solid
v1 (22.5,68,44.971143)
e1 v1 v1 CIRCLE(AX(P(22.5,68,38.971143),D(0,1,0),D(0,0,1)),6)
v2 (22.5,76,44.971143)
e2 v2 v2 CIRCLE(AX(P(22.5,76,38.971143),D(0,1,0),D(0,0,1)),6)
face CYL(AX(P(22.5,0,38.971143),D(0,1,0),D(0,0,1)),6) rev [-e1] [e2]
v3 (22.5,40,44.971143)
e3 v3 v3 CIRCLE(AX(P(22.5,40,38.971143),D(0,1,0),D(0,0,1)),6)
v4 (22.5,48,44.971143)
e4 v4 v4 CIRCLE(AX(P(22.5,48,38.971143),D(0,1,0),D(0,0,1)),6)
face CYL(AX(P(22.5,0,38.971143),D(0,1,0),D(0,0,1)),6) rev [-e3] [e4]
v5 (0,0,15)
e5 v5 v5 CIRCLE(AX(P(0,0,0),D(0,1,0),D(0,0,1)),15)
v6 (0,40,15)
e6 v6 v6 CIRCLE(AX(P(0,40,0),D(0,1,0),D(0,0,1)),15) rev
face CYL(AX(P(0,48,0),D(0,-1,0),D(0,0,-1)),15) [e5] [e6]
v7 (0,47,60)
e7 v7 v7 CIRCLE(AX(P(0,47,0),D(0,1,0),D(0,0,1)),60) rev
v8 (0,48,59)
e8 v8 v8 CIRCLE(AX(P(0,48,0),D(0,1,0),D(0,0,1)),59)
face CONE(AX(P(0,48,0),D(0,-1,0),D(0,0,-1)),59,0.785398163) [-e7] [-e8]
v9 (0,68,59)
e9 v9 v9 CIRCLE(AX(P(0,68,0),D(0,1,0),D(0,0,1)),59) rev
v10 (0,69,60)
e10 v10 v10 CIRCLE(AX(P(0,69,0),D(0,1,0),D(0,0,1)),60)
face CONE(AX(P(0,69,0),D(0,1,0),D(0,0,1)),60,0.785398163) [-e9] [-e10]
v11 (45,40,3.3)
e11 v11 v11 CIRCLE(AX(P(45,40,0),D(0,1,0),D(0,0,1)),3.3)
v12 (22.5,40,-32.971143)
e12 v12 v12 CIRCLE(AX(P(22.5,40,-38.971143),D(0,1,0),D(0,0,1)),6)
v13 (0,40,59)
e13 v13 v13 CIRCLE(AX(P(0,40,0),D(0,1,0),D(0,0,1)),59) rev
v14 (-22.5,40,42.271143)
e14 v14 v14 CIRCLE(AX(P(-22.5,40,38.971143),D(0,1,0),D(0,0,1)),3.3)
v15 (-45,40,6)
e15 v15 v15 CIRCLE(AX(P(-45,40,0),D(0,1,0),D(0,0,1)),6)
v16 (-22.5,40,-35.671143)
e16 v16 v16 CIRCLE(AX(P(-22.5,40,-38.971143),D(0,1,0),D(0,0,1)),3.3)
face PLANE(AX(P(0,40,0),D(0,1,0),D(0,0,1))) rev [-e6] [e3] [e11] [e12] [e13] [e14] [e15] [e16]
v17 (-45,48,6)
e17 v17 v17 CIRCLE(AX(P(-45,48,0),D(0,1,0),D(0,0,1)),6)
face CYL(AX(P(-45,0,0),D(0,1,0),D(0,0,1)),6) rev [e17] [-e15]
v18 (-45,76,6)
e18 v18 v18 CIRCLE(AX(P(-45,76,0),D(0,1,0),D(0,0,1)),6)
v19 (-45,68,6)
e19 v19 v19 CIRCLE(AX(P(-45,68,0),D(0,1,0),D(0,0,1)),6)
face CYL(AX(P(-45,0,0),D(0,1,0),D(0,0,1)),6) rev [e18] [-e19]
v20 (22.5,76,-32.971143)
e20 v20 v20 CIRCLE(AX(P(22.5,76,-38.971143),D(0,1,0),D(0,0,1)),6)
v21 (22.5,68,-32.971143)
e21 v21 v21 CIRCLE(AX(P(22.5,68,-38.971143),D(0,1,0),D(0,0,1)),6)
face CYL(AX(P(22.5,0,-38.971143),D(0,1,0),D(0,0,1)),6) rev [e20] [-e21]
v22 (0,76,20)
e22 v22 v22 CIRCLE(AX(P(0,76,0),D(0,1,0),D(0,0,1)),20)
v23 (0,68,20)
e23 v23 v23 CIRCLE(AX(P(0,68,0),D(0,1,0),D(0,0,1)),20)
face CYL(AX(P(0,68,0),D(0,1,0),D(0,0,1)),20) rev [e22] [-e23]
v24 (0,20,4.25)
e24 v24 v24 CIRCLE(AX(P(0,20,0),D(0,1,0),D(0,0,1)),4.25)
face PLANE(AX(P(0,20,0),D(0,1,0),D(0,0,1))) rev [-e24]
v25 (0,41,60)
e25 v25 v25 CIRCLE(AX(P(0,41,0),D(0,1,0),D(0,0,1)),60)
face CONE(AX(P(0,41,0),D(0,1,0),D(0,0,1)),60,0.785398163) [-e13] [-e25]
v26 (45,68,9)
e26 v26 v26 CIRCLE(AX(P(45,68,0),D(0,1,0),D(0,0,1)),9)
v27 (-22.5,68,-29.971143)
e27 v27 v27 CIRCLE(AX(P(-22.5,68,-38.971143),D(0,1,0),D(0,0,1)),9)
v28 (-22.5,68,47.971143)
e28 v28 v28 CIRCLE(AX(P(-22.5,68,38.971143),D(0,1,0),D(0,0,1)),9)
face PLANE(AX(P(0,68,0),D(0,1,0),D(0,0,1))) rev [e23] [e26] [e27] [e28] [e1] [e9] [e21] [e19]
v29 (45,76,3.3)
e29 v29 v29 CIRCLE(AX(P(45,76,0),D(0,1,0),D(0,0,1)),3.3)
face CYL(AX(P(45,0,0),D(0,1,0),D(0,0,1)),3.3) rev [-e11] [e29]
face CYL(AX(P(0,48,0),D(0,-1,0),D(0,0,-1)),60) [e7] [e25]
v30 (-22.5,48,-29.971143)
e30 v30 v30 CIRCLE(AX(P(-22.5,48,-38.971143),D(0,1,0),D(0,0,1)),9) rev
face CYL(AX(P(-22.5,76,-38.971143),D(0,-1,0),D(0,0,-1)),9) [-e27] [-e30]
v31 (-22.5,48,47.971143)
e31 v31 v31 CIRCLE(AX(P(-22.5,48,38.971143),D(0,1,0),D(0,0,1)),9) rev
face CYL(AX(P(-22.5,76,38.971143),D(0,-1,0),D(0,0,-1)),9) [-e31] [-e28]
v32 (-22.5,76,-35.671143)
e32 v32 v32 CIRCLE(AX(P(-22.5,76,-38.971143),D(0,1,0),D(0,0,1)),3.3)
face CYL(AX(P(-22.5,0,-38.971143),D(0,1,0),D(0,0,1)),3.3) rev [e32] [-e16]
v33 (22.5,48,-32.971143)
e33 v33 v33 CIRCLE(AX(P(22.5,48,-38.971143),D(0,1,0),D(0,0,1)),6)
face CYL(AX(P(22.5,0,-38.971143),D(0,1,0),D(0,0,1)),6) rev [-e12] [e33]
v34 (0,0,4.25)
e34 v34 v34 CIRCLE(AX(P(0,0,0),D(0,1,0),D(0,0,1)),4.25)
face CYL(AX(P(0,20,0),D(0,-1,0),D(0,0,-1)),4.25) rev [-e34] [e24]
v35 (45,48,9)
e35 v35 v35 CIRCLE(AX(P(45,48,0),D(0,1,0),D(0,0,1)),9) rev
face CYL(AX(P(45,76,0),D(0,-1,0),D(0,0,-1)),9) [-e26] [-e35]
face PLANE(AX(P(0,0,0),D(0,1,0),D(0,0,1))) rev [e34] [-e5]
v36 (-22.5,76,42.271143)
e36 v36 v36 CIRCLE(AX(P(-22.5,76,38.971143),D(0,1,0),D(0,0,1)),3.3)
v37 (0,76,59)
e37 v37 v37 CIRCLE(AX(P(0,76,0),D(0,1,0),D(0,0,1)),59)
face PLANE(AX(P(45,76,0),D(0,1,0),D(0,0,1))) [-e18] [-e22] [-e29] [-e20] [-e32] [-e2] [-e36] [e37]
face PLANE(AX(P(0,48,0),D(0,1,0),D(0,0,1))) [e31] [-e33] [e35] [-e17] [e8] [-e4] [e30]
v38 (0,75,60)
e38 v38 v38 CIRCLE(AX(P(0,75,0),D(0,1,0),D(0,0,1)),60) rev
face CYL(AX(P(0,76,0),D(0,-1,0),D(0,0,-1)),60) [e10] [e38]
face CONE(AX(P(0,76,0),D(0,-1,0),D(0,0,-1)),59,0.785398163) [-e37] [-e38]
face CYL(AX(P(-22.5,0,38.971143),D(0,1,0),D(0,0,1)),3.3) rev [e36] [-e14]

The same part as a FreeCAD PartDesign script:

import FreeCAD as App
import Part
import Sketcher

V = App.Vector


def edges_at(feature, points):
    """Names of the edges that pass closest to the given points."""
    edges = feature.Shape.Edges
    near = lambda p: min(range(len(edges)), key=lambda i: edges[i].distToShape(Part.Vertex(*p))[0])
    return sorted({f"Edge{near(p) + 1}" for p in points})

doc = App.newDocument("Part")
params = doc.addObject("Spreadsheet::Sheet", "Params")
for row, (alias, value) in enumerate([
    ("sketch1_diameter", "120 mm"),
    ("pad1_length", "8 mm"),
    ("sketch2_diameter", "18 mm"),
    ("pad2_length", "36 mm"),
    ("sketch3_diameter", "120 mm"),
    ("pad3_length", "8 mm"),
    ("sketch4_diameter", "30 mm"),
    ("pad4_length", "48 mm"),
    ("sketch5_diameter", "6.6 mm"),
    ("sketch6_diameter", "12 mm"),
    ("sketch7_diameter", "40 mm"),
    ("pocket3_length", "8 mm"),
    ("sketch8_diameter", "8.5 mm"),
    ("pocket4_length", "20 mm"),
    ("chamfer_size", "1 mm"),
], start=1):
    params.set(f"A{row}", alias)
    params.set(f"B{row}", "=" + value)
    params.setAlias(f"B{row}", alias)

body = doc.addObject("PartDesign::Body", "Body")

sketch1 = doc.addObject("Sketcher::SketchObject", "Sketch")
body.addObject(sketch1)
sketch1.AttachmentSupport = (doc.XZ_Plane, [""])
sketch1.MapMode = "FlatFace"
sketch1.AttachmentOffset = App.Placement(V(0, 0, -40), App.Rotation())
sketch1.addGeometry(Part.Circle(V(0, 0, 0), V(0, 0, 1), 60), False)
sketch1.addConstraint(Sketcher.Constraint("Coincident", 0, 3, -1, 1))
sketch1.addConstraint(Sketcher.Constraint("Diameter", 0, 120.0))
sketch1.setExpression("Constraints[1]", "Params.sketch1_diameter")
pad1 = doc.addObject("PartDesign::Pad", "Pad")
body.addObject(pad1)
pad1.Profile = sketch1
pad1.setExpression("Length", "Params.pad1_length")
pad1.Reversed = True

sketch2 = doc.addObject("Sketcher::SketchObject", "Sketch001")
body.addObject(sketch2)
sketch2.AttachmentSupport = (doc.XZ_Plane, [""])
sketch2.MapMode = "FlatFace"
sketch2.AttachmentOffset = App.Placement(V(0, 0, -40), App.Rotation())
sketch2.addGeometry(Part.Circle(V(45, 0, 0), V(0, 0, 1), 9), False)
sketch2.addGeometry(Part.Circle(V(-22, 39, 0), V(0, 0, 1), 9), False)
sketch2.addGeometry(Part.Circle(V(-22, -39, 0), V(0, 0, 1), 9), False)
sketch2.addConstraint(Sketcher.Constraint("Equal", 0, 1))
sketch2.addConstraint(Sketcher.Constraint("Equal", 1, 2))
sketch2.addConstraint(Sketcher.Constraint("Symmetric", 1, 3, 2, 3, -1))
sketch2.addConstraint(Sketcher.Constraint("PointOnObject", 0, 3, -1))
sketch2.addConstraint(Sketcher.Constraint("Diameter", 0, 18.0))
sketch2.addConstraint(Sketcher.Constraint("DistanceX", -1, 1, 0, 3, 45.0))
sketch2.addConstraint(Sketcher.Constraint("DistanceX", 1, 3, -1, 1, 22.5))
sketch2.addConstraint(Sketcher.Constraint("DistanceY", -1, 1, 1, 3, 38.971143))
sketch2.setExpression("Constraints[4]", "Params.sketch2_diameter")
pad2 = doc.addObject("PartDesign::Pad", "Pad001")
body.addObject(pad2)
pad2.Profile = sketch2
pad2.setExpression("Length", "Params.pad2_length")
pad2.Reversed = True

sketch3 = doc.addObject("Sketcher::SketchObject", "Sketch002")
body.addObject(sketch3)
sketch3.AttachmentSupport = (doc.XZ_Plane, [""])
sketch3.MapMode = "FlatFace"
sketch3.AttachmentOffset = App.Placement(V(0, 0, -68), App.Rotation())
sketch3.addGeometry(Part.Circle(V(0, 0, 0), V(0, 0, 1), 60), False)
sketch3.addConstraint(Sketcher.Constraint("Coincident", 0, 3, -1, 1))
sketch3.addConstraint(Sketcher.Constraint("Diameter", 0, 120.0))
sketch3.setExpression("Constraints[1]", "Params.sketch3_diameter")
pad3 = doc.addObject("PartDesign::Pad", "Pad002")
body.addObject(pad3)
pad3.Profile = sketch3
pad3.setExpression("Length", "Params.pad3_length")
pad3.Reversed = True

sketch4 = doc.addObject("Sketcher::SketchObject", "Sketch003")
body.addObject(sketch4)
sketch4.AttachmentSupport = (doc.XZ_Plane, [""])
sketch4.MapMode = "FlatFace"
sketch4.addGeometry(Part.Circle(V(0, 0, 0), V(0, 0, 1), 15), False)
sketch4.addConstraint(Sketcher.Constraint("Coincident", 0, 3, -1, 1))
sketch4.addConstraint(Sketcher.Constraint("Diameter", 0, 30.0))
sketch4.setExpression("Constraints[1]", "Params.sketch4_diameter")
pad4 = doc.addObject("PartDesign::Pad", "Pad003")
body.addObject(pad4)
pad4.Profile = sketch4
pad4.setExpression("Length", "Params.pad4_length")
pad4.Reversed = True

sketch5 = doc.addObject("Sketcher::SketchObject", "Sketch004")
body.addObject(sketch5)
sketch5.AttachmentSupport = (doc.XZ_Plane, [""])
sketch5.MapMode = "FlatFace"
sketch5.AttachmentOffset = App.Placement(V(0, 0, -76), App.Rotation())
sketch5.addGeometry(Part.Circle(V(45, 0, 0), V(0, 0, 1), 3.3), False)
sketch5.addGeometry(Part.Circle(V(-22.5, 39, 0), V(0, 0, 1), 3.3), False)
sketch5.addGeometry(Part.Circle(V(-22.5, -39, 0), V(0, 0, 1), 3.3), False)
sketch5.addConstraint(Sketcher.Constraint("Equal", 0, 1))
sketch5.addConstraint(Sketcher.Constraint("Equal", 1, 2))
sketch5.addConstraint(Sketcher.Constraint("Symmetric", 1, 3, 2, 3, -1))
sketch5.addConstraint(Sketcher.Constraint("PointOnObject", 0, 3, -1))
sketch5.addConstraint(Sketcher.Constraint("Diameter", 0, 6.6))
sketch5.addConstraint(Sketcher.Constraint("DistanceX", -1, 1, 0, 3, 45.0))
sketch5.addConstraint(Sketcher.Constraint("DistanceX", 1, 3, -1, 1, 22.5))
sketch5.addConstraint(Sketcher.Constraint("DistanceY", -1, 1, 1, 3, 38.971143))
sketch5.setExpression("Constraints[4]", "Params.sketch5_diameter")
pocket1 = doc.addObject("PartDesign::Pocket", "Pocket")
body.addObject(pocket1)
pocket1.Profile = sketch5
pocket1.Type = "ThroughAll"
pocket1.Reversed = True

sketch6 = doc.addObject("Sketcher::SketchObject", "Sketch005")
body.addObject(sketch6)
sketch6.AttachmentSupport = (doc.XZ_Plane, [""])
sketch6.MapMode = "FlatFace"
sketch6.AttachmentOffset = App.Placement(V(0, 0, -76), App.Rotation())
sketch6.addGeometry(Part.Circle(V(22, 39, 0), V(0, 0, 1), 6), False)
sketch6.addGeometry(Part.Circle(V(-45, 0, 0), V(0, 0, 1), 6), False)
sketch6.addGeometry(Part.Circle(V(22, -39, 0), V(0, 0, 1), 6), False)
sketch6.addConstraint(Sketcher.Constraint("Equal", 0, 1))
sketch6.addConstraint(Sketcher.Constraint("Equal", 1, 2))
sketch6.addConstraint(Sketcher.Constraint("Symmetric", 0, 3, 2, 3, -1))
sketch6.addConstraint(Sketcher.Constraint("PointOnObject", 1, 3, -1))
sketch6.addConstraint(Sketcher.Constraint("Diameter", 0, 12.0))
sketch6.addConstraint(Sketcher.Constraint("DistanceX", 1, 3, -1, 1, 45.0))
sketch6.addConstraint(Sketcher.Constraint("DistanceX", -1, 1, 0, 3, 22.5))
sketch6.addConstraint(Sketcher.Constraint("DistanceY", -1, 1, 0, 3, 38.971143))
sketch6.setExpression("Constraints[4]", "Params.sketch6_diameter")
pocket2 = doc.addObject("PartDesign::Pocket", "Pocket001")
body.addObject(pocket2)
pocket2.Profile = sketch6
pocket2.Type = "ThroughAll"
pocket2.Reversed = True

sketch7 = doc.addObject("Sketcher::SketchObject", "Sketch006")
body.addObject(sketch7)
sketch7.AttachmentSupport = (doc.XZ_Plane, [""])
sketch7.MapMode = "FlatFace"
sketch7.AttachmentOffset = App.Placement(V(0, 0, -76), App.Rotation())
sketch7.addGeometry(Part.Circle(V(0, 0, 0), V(0, 0, 1), 20), False)
sketch7.addConstraint(Sketcher.Constraint("Coincident", 0, 3, -1, 1))
sketch7.addConstraint(Sketcher.Constraint("Diameter", 0, 40.0))
sketch7.setExpression("Constraints[1]", "Params.sketch7_diameter")
pocket3 = doc.addObject("PartDesign::Pocket", "Pocket002")
body.addObject(pocket3)
pocket3.Profile = sketch7
pocket3.setExpression("Length", "Params.pocket3_length")
pocket3.Reversed = True

sketch8 = doc.addObject("Sketcher::SketchObject", "Sketch007")
body.addObject(sketch8)
sketch8.AttachmentSupport = (doc.XZ_Plane, [""])
sketch8.MapMode = "FlatFace"
sketch8.addGeometry(Part.Circle(V(0, 0, 0), V(0, 0, 1), 4.2), False)
sketch8.addConstraint(Sketcher.Constraint("Coincident", 0, 3, -1, 1))
sketch8.addConstraint(Sketcher.Constraint("Diameter", 0, 8.5))
sketch8.setExpression("Constraints[1]", "Params.sketch8_diameter")
pocket4 = doc.addObject("PartDesign::Pocket", "Pocket003")
body.addObject(pocket4)
pocket4.Profile = sketch8
pocket4.setExpression("Length", "Params.pocket4_length")
doc.recompute()

chamfer = doc.addObject("PartDesign::Chamfer", "Chamfer")
body.addObject(chamfer)
chamfer.Base = (pocket4, edges_at(pocket4, [
    (0, 40, -60),
    (0, 68, -60),
    (0, 76, -60),
    (0, 48, -60),
]))
chamfer.setExpression("Size", "Params.chamfer_size")

doc.recompute()
